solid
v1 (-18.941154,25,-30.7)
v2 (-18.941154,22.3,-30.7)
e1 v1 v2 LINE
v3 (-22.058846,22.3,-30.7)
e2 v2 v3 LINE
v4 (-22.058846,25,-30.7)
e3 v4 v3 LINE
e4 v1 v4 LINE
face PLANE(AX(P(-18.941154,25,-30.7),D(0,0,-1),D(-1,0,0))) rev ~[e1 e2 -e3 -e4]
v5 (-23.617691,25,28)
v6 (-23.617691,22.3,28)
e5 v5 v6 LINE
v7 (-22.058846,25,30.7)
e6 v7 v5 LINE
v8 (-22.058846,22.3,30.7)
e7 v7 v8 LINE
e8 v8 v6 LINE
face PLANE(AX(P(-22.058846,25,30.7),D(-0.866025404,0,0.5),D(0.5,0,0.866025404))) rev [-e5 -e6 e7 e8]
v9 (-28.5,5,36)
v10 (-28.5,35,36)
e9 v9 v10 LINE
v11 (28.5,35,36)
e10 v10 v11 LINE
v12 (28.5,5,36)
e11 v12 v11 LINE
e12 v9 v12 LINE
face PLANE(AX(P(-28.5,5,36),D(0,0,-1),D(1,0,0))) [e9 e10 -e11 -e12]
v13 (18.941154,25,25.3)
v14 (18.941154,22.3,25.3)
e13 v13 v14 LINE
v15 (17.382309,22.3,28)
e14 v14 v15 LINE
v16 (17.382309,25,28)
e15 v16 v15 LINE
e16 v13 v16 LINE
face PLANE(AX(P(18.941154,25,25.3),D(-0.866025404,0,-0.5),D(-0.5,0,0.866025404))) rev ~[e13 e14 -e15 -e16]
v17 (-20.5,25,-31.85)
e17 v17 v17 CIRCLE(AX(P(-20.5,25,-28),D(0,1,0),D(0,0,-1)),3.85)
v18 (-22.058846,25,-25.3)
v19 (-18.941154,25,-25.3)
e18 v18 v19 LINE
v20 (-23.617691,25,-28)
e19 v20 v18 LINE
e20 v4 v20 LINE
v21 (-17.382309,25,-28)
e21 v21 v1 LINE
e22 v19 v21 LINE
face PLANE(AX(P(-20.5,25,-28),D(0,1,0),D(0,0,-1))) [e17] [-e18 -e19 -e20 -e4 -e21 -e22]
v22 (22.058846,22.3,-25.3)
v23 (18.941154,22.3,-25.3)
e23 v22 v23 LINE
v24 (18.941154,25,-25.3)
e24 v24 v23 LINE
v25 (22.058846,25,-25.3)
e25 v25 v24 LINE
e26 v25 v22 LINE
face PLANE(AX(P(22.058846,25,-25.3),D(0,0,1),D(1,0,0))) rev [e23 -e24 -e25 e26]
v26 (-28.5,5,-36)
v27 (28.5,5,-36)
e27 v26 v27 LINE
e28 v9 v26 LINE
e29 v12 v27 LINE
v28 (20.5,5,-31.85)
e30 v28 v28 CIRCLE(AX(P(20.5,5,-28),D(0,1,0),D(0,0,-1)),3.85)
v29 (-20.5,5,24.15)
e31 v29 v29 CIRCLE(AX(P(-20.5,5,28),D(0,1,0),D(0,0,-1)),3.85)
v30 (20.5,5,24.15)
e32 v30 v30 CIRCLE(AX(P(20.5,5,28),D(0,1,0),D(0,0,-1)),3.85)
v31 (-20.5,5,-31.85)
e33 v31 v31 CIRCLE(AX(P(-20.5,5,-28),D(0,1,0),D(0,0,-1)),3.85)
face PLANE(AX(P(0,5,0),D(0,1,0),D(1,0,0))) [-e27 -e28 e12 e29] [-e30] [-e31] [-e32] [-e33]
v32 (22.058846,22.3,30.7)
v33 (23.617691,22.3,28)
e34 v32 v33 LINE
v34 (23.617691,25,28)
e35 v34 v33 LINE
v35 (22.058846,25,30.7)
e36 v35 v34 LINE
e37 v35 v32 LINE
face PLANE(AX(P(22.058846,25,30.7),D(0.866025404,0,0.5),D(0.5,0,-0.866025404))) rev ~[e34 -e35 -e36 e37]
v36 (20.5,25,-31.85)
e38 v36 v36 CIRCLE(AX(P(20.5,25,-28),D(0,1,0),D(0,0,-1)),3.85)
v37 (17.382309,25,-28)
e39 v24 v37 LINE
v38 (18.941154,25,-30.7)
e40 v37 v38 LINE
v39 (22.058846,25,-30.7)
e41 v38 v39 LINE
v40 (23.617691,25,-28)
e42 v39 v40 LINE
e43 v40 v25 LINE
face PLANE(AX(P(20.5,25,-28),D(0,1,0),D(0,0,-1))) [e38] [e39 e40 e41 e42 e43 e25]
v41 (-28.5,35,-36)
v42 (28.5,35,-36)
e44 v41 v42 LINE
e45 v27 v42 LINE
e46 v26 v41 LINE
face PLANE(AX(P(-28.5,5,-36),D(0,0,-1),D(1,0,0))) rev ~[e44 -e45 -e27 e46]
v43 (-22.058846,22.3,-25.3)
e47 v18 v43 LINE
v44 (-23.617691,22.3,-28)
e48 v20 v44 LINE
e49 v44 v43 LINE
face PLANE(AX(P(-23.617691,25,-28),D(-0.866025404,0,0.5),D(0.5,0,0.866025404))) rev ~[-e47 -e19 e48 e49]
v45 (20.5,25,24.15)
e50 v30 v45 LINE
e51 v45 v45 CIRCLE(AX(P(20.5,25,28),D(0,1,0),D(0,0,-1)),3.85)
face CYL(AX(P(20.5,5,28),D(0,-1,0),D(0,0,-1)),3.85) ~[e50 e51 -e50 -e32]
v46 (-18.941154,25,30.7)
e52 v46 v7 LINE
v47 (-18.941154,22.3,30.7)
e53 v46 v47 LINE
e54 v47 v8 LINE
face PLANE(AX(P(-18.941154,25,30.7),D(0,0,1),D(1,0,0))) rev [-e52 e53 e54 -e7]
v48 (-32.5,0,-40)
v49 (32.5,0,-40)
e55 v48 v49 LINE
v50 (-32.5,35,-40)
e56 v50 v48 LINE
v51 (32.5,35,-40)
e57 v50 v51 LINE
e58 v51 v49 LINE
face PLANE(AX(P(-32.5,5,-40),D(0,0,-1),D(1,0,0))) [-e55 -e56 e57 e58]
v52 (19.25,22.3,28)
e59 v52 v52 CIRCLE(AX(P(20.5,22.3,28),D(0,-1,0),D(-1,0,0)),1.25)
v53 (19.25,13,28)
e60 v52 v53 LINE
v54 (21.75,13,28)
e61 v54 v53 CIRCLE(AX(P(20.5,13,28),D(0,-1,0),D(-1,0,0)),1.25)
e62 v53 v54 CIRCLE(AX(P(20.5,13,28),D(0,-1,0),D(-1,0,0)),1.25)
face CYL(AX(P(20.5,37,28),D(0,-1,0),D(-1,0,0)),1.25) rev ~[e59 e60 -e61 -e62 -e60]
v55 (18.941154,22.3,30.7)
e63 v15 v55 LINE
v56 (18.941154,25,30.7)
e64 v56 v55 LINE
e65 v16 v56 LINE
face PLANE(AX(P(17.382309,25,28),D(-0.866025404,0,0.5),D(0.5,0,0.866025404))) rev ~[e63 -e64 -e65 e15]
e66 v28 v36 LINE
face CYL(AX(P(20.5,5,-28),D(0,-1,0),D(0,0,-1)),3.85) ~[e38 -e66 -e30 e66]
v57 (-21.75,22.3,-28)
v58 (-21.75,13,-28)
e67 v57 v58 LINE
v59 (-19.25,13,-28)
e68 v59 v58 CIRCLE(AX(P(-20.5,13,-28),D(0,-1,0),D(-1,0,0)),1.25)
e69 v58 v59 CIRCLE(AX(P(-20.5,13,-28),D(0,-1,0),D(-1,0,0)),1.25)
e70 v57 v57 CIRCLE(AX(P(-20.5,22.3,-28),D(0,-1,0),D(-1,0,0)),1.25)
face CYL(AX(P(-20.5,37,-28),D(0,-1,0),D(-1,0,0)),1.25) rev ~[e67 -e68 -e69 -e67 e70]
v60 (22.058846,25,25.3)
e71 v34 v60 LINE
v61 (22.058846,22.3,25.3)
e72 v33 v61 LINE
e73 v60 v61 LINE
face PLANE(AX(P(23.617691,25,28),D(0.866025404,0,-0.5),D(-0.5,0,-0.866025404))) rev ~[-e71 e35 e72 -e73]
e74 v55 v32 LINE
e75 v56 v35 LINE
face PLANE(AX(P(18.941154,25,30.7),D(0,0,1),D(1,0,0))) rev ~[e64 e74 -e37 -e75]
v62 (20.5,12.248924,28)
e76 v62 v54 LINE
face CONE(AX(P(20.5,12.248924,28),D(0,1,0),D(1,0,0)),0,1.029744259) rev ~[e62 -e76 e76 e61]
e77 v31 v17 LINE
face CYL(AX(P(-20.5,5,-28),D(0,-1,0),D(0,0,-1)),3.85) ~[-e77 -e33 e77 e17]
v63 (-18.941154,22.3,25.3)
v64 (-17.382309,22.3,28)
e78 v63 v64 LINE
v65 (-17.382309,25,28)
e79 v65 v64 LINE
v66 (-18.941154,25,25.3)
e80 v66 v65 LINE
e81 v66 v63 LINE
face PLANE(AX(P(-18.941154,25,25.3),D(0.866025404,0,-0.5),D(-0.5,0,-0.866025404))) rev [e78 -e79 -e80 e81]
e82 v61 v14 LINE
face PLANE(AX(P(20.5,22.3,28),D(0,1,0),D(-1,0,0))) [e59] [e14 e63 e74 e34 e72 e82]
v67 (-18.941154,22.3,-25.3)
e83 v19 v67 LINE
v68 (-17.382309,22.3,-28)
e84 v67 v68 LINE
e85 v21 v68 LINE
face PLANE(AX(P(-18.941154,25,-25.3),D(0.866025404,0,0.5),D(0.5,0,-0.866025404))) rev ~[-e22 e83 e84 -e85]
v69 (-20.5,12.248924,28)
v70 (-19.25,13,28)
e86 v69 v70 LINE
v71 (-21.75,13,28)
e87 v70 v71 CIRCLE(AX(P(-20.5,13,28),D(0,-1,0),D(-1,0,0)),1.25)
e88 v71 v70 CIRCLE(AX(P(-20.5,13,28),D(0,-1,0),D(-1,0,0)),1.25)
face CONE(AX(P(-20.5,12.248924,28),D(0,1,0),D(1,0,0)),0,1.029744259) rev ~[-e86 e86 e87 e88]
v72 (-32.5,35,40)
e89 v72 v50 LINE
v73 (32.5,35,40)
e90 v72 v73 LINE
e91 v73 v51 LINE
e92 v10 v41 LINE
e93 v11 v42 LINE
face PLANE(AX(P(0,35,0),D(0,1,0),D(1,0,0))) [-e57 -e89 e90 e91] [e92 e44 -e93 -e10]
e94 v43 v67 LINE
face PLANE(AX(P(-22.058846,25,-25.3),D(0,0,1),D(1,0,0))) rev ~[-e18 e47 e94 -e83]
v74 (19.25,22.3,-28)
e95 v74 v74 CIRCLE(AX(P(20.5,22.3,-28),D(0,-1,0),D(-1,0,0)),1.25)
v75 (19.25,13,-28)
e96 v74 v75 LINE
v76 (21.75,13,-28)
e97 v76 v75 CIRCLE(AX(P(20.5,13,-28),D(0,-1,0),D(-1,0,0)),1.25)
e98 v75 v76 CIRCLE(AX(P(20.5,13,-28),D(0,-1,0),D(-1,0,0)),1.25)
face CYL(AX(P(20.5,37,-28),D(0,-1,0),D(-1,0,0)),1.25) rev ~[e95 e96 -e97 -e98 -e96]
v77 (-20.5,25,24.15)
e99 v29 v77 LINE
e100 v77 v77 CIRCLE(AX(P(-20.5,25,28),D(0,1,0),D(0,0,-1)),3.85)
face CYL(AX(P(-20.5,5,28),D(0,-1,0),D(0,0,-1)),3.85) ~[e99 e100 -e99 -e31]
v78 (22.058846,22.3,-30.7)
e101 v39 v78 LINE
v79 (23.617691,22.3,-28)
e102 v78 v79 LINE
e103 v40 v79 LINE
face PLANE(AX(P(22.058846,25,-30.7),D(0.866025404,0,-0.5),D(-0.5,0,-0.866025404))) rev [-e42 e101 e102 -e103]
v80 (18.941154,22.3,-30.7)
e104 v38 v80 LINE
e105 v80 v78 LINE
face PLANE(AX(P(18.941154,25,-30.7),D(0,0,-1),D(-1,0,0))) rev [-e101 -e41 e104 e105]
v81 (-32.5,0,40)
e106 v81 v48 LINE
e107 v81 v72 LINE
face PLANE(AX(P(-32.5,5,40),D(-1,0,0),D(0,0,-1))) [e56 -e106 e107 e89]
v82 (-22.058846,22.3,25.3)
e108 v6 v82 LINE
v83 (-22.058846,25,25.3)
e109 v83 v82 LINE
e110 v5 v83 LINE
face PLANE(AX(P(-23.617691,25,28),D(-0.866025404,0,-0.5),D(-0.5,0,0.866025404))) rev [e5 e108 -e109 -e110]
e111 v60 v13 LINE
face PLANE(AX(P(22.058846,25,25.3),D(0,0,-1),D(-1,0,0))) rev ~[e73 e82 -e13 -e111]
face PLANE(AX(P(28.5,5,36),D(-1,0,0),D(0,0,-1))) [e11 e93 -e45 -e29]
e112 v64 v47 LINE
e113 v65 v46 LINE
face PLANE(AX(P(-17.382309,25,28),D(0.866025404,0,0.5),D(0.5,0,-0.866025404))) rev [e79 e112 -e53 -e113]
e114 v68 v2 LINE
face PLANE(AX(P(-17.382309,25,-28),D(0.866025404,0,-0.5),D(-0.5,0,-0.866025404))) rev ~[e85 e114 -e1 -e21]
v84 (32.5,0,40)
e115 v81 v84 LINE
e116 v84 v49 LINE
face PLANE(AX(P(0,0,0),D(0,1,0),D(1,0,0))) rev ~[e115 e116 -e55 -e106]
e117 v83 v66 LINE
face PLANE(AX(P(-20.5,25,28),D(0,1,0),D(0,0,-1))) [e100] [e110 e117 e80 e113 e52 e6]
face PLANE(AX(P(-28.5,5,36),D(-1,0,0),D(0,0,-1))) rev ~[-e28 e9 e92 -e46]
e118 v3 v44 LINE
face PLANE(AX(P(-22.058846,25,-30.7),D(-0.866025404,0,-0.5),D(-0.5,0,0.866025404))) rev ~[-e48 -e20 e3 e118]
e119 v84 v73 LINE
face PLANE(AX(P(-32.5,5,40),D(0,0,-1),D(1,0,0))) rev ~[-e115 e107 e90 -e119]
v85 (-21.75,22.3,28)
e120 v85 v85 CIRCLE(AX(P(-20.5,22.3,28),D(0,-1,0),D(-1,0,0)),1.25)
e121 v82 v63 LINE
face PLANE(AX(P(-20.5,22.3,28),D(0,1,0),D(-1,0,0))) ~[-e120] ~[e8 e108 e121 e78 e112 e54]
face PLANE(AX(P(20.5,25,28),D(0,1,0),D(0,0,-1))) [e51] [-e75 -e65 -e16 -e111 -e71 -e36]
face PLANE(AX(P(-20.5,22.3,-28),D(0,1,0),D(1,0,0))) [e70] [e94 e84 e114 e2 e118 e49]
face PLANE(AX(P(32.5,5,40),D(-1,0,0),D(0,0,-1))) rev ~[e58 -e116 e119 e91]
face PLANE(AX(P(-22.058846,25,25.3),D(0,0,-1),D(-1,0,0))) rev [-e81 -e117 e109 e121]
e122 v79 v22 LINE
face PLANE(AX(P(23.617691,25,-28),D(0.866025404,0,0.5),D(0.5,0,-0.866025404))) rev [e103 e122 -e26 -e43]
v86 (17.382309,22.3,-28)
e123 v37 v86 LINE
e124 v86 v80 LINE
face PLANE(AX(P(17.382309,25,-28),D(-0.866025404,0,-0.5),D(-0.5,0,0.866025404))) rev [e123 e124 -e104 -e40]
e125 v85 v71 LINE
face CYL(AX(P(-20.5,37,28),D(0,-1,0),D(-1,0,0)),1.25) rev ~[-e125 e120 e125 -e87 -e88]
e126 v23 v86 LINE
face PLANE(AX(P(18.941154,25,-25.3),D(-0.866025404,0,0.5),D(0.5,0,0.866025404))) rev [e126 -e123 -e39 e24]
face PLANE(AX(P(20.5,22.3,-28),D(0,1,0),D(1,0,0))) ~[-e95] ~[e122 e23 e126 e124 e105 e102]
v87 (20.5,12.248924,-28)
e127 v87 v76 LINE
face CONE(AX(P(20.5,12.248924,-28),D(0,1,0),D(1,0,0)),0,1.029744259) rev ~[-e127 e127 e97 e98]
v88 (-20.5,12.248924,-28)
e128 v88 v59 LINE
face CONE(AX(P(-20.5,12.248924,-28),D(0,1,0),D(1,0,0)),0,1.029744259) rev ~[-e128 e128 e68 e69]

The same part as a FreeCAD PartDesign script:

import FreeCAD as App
import Part
import Sketcher

V = App.Vector
Q = App.Units.Quantity


def add_polygon(sketch, points):
    """Adds a closed chain of lines whose ends are joined by coincident constraints."""
    first, n = sketch.GeometryCount, len(points)
    for a, b in zip(points, points[1:] + points[:1]):
        sketch.addGeometry(Part.LineSegment(App.Vector(*a, 0), App.Vector(*b, 0)), False)
    for i in range(n):
        sketch.addConstraint(Sketcher.Constraint("Coincident", first + i, 2, first + (i + 1) % n, 1))

doc = App.newDocument("Part")
body = doc.addObject("PartDesign::Body", "Body")

# Sketch on XZ plane
sketch1 = doc.addObject("Sketcher::SketchObject", "Sketch")
body.addObject(sketch1)
sketch1.AttachmentSupport = (doc.XZ_Plane, [""])
sketch1.MapMode = "FlatFace"
add_polygon(sketch1, [(-32.5, -40), (-32.5, 40), (32.5, 40), (32.5, -40)])  # lines 0-3
sketch1.addConstraint(Sketcher.Constraint("Vertical", 0))
sketch1.addConstraint(Sketcher.Constraint("Horizontal", 1))
sketch1.addConstraint(Sketcher.Constraint("Vertical", 2))
sketch1.addConstraint(Sketcher.Constraint("Horizontal", 3))
sketch1.addConstraint(Sketcher.Constraint("Symmetric", 0, 2, 2, 2, -1, 1))
sketch1.addConstraint(Sketcher.Constraint("DistanceX", 1, 1, 1, 2, 65.0))
sketch1.addConstraint(Sketcher.Constraint("DistanceY", 0, 1, 0, 2, 80.0))
pad1 = doc.addObject("PartDesign::Pad", "Pad")
body.addObject(pad1)
pad1.Profile = sketch1
pad1.Length = 5
pad1.Reversed = True

# Sketch on XZ plane
sketch2 = doc.addObject("Sketcher::SketchObject", "Sketch001")
body.addObject(sketch2)
sketch2.AttachmentSupport = (doc.XZ_Plane, [""])
sketch2.MapMode = "FlatFace"
sketch2.AttachmentOffset = App.Placement(V(0, 0, -5), App.Rotation())
add_polygon(sketch2, [(-32.5, -40), (-32.5, 40), (32.5, 40), (32.5, -40)])  # lines 0-3
add_polygon(sketch2, [(28.5, 36), (-28.5, 36), (-28.5, -36), (28.5, -36)])  # lines 4-7
sketch2.addConstraint(Sketcher.Constraint("Vertical", 0))
sketch2.addConstraint(Sketcher.Constraint("Horizontal", 1))
sketch2.addConstraint(Sketcher.Constraint("Vertical", 2))
sketch2.addConstraint(Sketcher.Constraint("Horizontal", 3))
sketch2.addConstraint(Sketcher.Constraint("Horizontal", 4))
sketch2.addConstraint(Sketcher.Constraint("Vertical", 5))
sketch2.addConstraint(Sketcher.Constraint("Horizontal", 6))
sketch2.addConstraint(Sketcher.Constraint("Vertical", 7))
sketch2.addConstraint(Sketcher.Constraint("Symmetric", 0, 2, 2, 2, -1, 1))
sketch2.addConstraint(Sketcher.Constraint("Symmetric", 4, 2, 6, 2, -1, 1))
sketch2.addConstraint(Sketcher.Constraint("DistanceX", 1, 1, 1, 2, 65.0))
sketch2.addConstraint(Sketcher.Constraint("DistanceX", 4, 2, 4, 1, 57.0))
sketch2.addConstraint(Sketcher.Constraint("DistanceY", 0, 1, 0, 2, 80.0))
sketch2.addConstraint(Sketcher.Constraint("DistanceY", 5, 2, 5, 1, 72.0))
pad2 = doc.addObject("PartDesign::Pad", "Pad001")
body.addObject(pad2)
pad2.Profile = sketch2
pad2.Length = 30
pad2.Reversed = True

# Sketch on XZ plane
sketch3 = doc.addObject("Sketcher::SketchObject", "Sketch002")
body.addObject(sketch3)
sketch3.AttachmentSupport = (doc.XZ_Plane, [""])
sketch3.MapMode = "FlatFace"
sketch3.AttachmentOffset = App.Placement(V(0, 0, -5), App.Rotation())
sketch3.addGeometry(Part.Circle(V(-20.5, 28, 0), V(0, 0, 1), 3.85), False)
sketch3.addGeometry(Part.Circle(V(20.5, 28, 0), V(0, 0, 1), 3.85), False)
sketch3.addGeometry(Part.Circle(V(20.5, -28, 0), V(0, 0, 1), 3.85), False)
sketch3.addGeometry(Part.Circle(V(-20.5, -28, 0), V(0, 0, 1), 3.85), False)
sketch3.addConstraint(Sketcher.Constraint("Equal", 0, 1))
sketch3.addConstraint(Sketcher.Constraint("Equal", 1, 2))
sketch3.addConstraint(Sketcher.Constraint("Equal", 2, 3))
sketch3.addConstraint(Sketcher.Constraint("Symmetric", 0, 3, 2, 3, -1, 1))
sketch3.addConstraint(Sketcher.Constraint("Symmetric", 1, 3, 3, 3, -1, 1))
sketch3.addConstraint(Sketcher.Constraint("Symmetric", 0, 3, 1, 3, -2))
sketch3.addConstraint(Sketcher.Constraint("Diameter", 0, 7.7))
sketch3.addConstraint(Sketcher.Constraint("DistanceY", -1, 1, 0, 3, 28.0))
sketch3.addConstraint(Sketcher.Constraint("DistanceX", 0, 3, 1, 3, 41.0))
pad3 = doc.addObject("PartDesign::Pad", "Pad002")
body.addObject(pad3)
pad3.Profile = sketch3
pad3.Length = 20
pad3.Reversed = True

# Sketch on XZ plane
sketch4 = doc.addObject("Sketcher::SketchObject", "Sketch003")
body.addObject(sketch4)
sketch4.AttachmentSupport = (doc.XZ_Plane, [""])
sketch4.MapMode = "FlatFace"
sketch4.AttachmentOffset = App.Placement(V(0, 0, -25), App.Rotation())
sketch4.addGeometry(Part.Circle(V(-20.5, -28, 0), V(0, 0, 1), 1.25), False)
sketch4.addGeometry(Part.Circle(V(20.5, -28, 0), V(0, 0, 1), 1.25), False)
sketch4.addGeometry(Part.Circle(V(20.5, 28, 0), V(0, 0, 1), 1.25), False)
sketch4.addGeometry(Part.Circle(V(-20.5, 28, 0), V(0, 0, 1), 1.25), False)
sketch4.addConstraint(Sketcher.Constraint("Equal", 0, 1))
sketch4.addConstraint(Sketcher.Constraint("Equal", 1, 2))
sketch4.addConstraint(Sketcher.Constraint("Equal", 2, 3))
sketch4.addConstraint(Sketcher.Constraint("Symmetric", 0, 3, 2, 3, -1, 1))
sketch4.addConstraint(Sketcher.Constraint("Symmetric", 1, 3, 3, 3, -1, 1))
sketch4.addConstraint(Sketcher.Constraint("Symmetric", 0, 3, 1, 3, -2))
sketch4.addConstraint(Sketcher.Constraint("Diameter", 0, 2.5))
sketch4.addConstraint(Sketcher.Constraint("DistanceY", 0, 3, -1, 1, 28.0))
sketch4.addConstraint(Sketcher.Constraint("DistanceX", 0, 3, 1, 3, 41.0))
doc.recompute()
hole = doc.addObject("PartDesign::Hole", "Hole")
body.addObject(hole)
hole.Profile = sketch4
hole.ThreadType = "None"
hole.Diameter = 2.5
hole.DepthType = "Dimension"
hole.Depth = 12
hole.DrillPoint = "Angled"
hole.DrillPointAngle = 118
hole.Reversed = True

# Sketch on XZ plane
sketch5 = doc.addObject("Sketcher::SketchObject", "Sketch004")
body.addObject(sketch5)
sketch5.AttachmentSupport = (doc.XZ_Plane, [""])
sketch5.MapMode = "FlatFace"
sketch5.AttachmentOffset = App.Placement(V(0, 0, -25), App.Rotation())
add_polygon(sketch5, [(-17.382309, -28), (-18.941154, -30.7), (-22.058846, -30.7), (-23.617691, -28), (-22.058846, -25.3), (-18.941154, -25.3)])  # lines 0-5
sketch5.addConstraint(Sketcher.Constraint("Horizontal", 1))
sketch5.addConstraint(Sketcher.Constraint("Horizontal", 4))
sketch5.addConstraint(Sketcher.Constraint("Parallel", 0, 3))
sketch5.addConstraint(Sketcher.Constraint("Parallel", 2, 5))
sketch5.addConstraint(Sketcher.Constraint("Horizontal", 2, 2, 5, 2))
sketch5.addConstraint(Sketcher.Constraint("Vertical", 1, 2, 3, 2))
sketch5.addConstraint(Sketcher.Constraint("Vertical", 0, 2, 4, 2))
sketch5.addConstraint(Sketcher.Constraint("Angle", 0, Q("-120 deg")))
sketch5.addConstraint(Sketcher.Constraint("DistanceY", 2, 2, -1, 1, 28.0))
sketch5.addConstraint(Sketcher.Constraint("DistanceY", 0, 2, -1, 1, 30.7))
sketch5.addConstraint(Sketcher.Constraint("DistanceX", 1, 2, 1, 1, 3.117691))
sketch5.addConstraint(Sketcher.Constraint("DistanceX", 2, 2, -1, 1, 23.617691))
pocket1 = doc.addObject("PartDesign::Pocket", "Pocket")
body.addObject(pocket1)
pocket1.Profile = sketch5
pocket1.Length = 2.7
pocket1.Reversed = True
doc.recompute()

mirrored = doc.addObject("PartDesign::Mirrored", "Mirrored")
body.addObject(mirrored)
mirrored.Originals = [pocket1]
mirrored.MirrorPlane = (doc.XY_Plane, [""])
body.Tip = mirrored
doc.recompute()

mirrored2 = doc.addObject("PartDesign::Mirrored", "Mirrored001")
body.addObject(mirrored2)
mirrored2.Originals = [pocket1]
mirrored2.MirrorPlane = (doc.YZ_Plane, [""])
body.Tip = mirrored2

# Sketch on XZ plane
sketch6 = doc.addObject("Sketcher::SketchObject", "Sketch005")
body.addObject(sketch6)
sketch6.AttachmentSupport = (doc.XZ_Plane, [""])
sketch6.MapMode = "FlatFace"
sketch6.AttachmentOffset = App.Placement(V(0, 0, -25), App.Rotation())
add_polygon(sketch6, [(17.382309, 28), (18.941154, 30.7), (22.058846, 30.7), (23.617691, 28), (22.058846, 25.3), (18.941154, 25.3)])  # lines 0-5
sketch6.addConstraint(Sketcher.Constraint("Horizontal", 1))
sketch6.addConstraint(Sketcher.Constraint("Horizontal", 4))
sketch6.addConstraint(Sketcher.Constraint("Parallel", 0, 3))
sketch6.addConstraint(Sketcher.Constraint("Parallel", 2, 5))
sketch6.addConstraint(Sketcher.Constraint("Horizontal", 2, 2, 5, 2))
sketch6.addConstraint(Sketcher.Constraint("Vertical", 1, 2, 3, 2))
sketch6.addConstraint(Sketcher.Constraint("Vertical", 0, 2, 4, 2))
sketch6.addConstraint(Sketcher.Constraint("Angle", 0, Q("60 deg")))
sketch6.addConstraint(Sketcher.Constraint("DistanceY", -1, 1, 2, 2, 28.0))
sketch6.addConstraint(Sketcher.Constraint("DistanceY", -1, 1, 0, 2, 30.7))
sketch6.addConstraint(Sketcher.Constraint("DistanceX", 1, 1, 1, 2, 3.117691))
sketch6.addConstraint(Sketcher.Constraint("DistanceX", -1, 1, 2, 2, 23.617691))
pocket2 = doc.addObject("PartDesign::Pocket", "Pocket001")
body.addObject(pocket2)
pocket2.Profile = sketch6
pocket2.Length = 2.7
pocket2.Reversed = True

doc.recompute()
